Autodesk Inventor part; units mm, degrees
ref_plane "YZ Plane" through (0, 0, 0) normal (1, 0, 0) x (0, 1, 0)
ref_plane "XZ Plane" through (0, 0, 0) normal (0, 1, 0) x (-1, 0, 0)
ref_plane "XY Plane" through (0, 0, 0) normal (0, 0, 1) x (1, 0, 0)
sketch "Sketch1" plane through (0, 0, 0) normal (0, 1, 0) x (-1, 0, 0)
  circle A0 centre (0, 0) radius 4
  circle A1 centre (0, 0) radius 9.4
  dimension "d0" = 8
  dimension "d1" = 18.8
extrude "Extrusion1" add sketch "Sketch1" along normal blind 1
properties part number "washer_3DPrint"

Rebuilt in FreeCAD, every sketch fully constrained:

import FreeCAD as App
import Part
import Sketcher

V = App.Vector
Q = App.Units.Quantity

doc = App.newDocument("Part")
body = doc.addObject("PartDesign::Body", "Body")

sketch1 = doc.addObject("Sketcher::SketchObject", "Sketch")
body.addObject(sketch1)
sketch1.AttachmentSupport = (doc.XZ_Plane, [""])
sketch1.MapMode = "FlatFace"
sketch1.addGeometry(Part.Circle(V(0, 0, 0), V(0, 0, 1), 9.4), False)
sketch1.addGeometry(Part.Circle(V(0, 0, 0), V(0, 0, 1), 4), False)
sketch1.addConstraint(Sketcher.Constraint("Coincident", 0, 3, -1, 1))
sketch1.addConstraint(Sketcher.Constraint("Coincident", 1, 3, -1, 1))
sketch1.addConstraint(Sketcher.Constraint("Diameter", 1, Q("8 mm")))
sketch1.addConstraint(Sketcher.Constraint("Diameter", 0, Q("18.8 mm")))
pad1 = doc.addObject("PartDesign::Pad", "Pad")
body.addObject(pad1)
pad1.Profile = sketch1
pad1.Length = 1
pad1.Reversed = True

doc.recompute()
